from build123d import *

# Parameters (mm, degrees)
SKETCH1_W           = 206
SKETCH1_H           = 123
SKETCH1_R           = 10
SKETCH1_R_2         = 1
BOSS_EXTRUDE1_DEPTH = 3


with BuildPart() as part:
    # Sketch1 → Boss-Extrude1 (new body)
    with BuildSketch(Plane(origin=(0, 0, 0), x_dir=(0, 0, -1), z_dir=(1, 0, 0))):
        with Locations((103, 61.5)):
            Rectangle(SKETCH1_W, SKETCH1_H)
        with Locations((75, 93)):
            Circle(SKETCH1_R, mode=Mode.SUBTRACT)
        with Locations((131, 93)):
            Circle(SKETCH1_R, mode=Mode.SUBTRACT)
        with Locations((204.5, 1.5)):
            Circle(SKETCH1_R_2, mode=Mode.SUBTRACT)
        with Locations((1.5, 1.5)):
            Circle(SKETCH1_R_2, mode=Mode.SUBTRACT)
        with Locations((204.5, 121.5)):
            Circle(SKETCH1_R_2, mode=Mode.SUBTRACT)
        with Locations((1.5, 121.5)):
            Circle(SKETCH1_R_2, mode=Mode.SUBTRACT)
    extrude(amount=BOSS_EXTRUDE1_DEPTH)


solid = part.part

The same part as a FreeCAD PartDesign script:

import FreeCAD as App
import Part
import Sketcher
from FreeCAD import Vector
Q = App.Units.Quantity

doc = App.newDocument("Part")
body = doc.addObject("PartDesign::Body", "Body")

sketch1 = body.newObject("Sketcher::SketchObject", "Sketch")
sketch1.AttachmentSupport = (doc.getObject("YZ_Plane"), [""])
sketch1.MapMode = "FlatFace"
sketch1.addGeometry(Part.LineSegment(Vector(123, 0, 0), Vector(0, 0, 0)), False)
sketch1.addGeometry(Part.LineSegment(Vector(0, 0, 0), Vector(0, -206, 0)), False)
sketch1.addGeometry(Part.LineSegment(Vector(0, -206, 0), Vector(123, -206, 0)), False)
sketch1.addGeometry(Part.LineSegment(Vector(123, -206, 0), Vector(123, 0, 0)), False)
sketch1.addGeometry(Part.Circle(Vector(1.5, -1.5, 0), Vector(0, 0, 1), 1), False)
sketch1.addGeometry(Part.Circle(Vector(1.5, -204.5, 0), Vector(0, 0, 1), 1), False)
sketch1.addGeometry(Part.Circle(Vector(121.5, -1.5, 0), Vector(0, 0, 1), 1), False)
sketch1.addGeometry(Part.Circle(Vector(93, -75, 0), Vector(0, 0, 1), 10), False)
sketch1.addGeometry(Part.Circle(Vector(93, -131, 0), Vector(0, 0, 1), 10), False)
sketch1.addGeometry(Part.Circle(Vector(121.5, -204.5, 0), Vector(0, 0, 1), 1), False)
sketch1.addConstraint(Sketcher.Constraint("Coincident", 0, 2, 1, 1))
sketch1.addConstraint(Sketcher.Constraint("Coincident", 1, 2, 2, 1))
sketch1.addConstraint(Sketcher.Constraint("Coincident", 2, 2, 3, 1))
sketch1.addConstraint(Sketcher.Constraint("Coincident", 3, 2, 0, 1))
sketch1.addConstraint(Sketcher.Constraint("Horizontal", 0))
sketch1.addConstraint(Sketcher.Constraint("Vertical", 1))
sketch1.addConstraint(Sketcher.Constraint("Horizontal", 2))
sketch1.addConstraint(Sketcher.Constraint("Vertical", 3))
sketch1.addConstraint(Sketcher.Constraint("Coincident", 0, 2, -1, 1))
sketch1.addConstraint(Sketcher.Constraint("Equal", 4, 5))
sketch1.addConstraint(Sketcher.Constraint("Equal", 5, 6))
sketch1.addConstraint(Sketcher.Constraint("Equal", 7, 8))
sketch1.addConstraint(Sketcher.Constraint("Equal", 6, 9))
sketch1.addConstraint(Sketcher.Constraint("Horizontal", 4, 3, 6, 3))
sketch1.addConstraint(Sketcher.Constraint("Horizontal", 5, 3, 9, 3))
sketch1.addConstraint(Sketcher.Constraint("Vertical", 4, 3, 5, 3))
sketch1.addConstraint(Sketcher.Constraint("Vertical", 7, 3, 8, 3))
sketch1.addConstraint(Sketcher.Constraint("Vertical", 6, 3, 9, 3))
sketch1.addConstraint(Sketcher.Constraint("Diameter", 4, Q("2 mm")))
sketch1.addConstraint(Sketcher.Constraint("Diameter", 7, Q("20 mm")))
sketch1.addConstraint(Sketcher.Constraint("DistanceX", 0, 2, 0, 1, Q("123 mm")))
sketch1.addConstraint(Sketcher.Constraint("DistanceY", 1, 2, 1, 1, Q("206 mm")))
sketch1.addConstraint(Sketcher.Constraint("DistanceX", -1, 1, 7, 3, Q("93 mm")))
sketch1.addConstraint(Sketcher.Constraint("DistanceY", 7, 3, -1, 1, Q("75 mm")))
sketch1.addConstraint(Sketcher.Constraint("DistanceY", 8, 3, -1, 1, Q("131 mm")))
sketch1.addConstraint(Sketcher.Constraint("DistanceY", 5, 3, 4, 3, Q("203 mm")))
sketch1.addConstraint(Sketcher.Constraint("DistanceX", 4, 3, 6, 3, Q("120 mm")))
sketch1.addConstraint(Sketcher.Constraint("DistanceX", -1, 1, 4, 3, Q("1.5 mm")))
sketch1.addConstraint(Sketcher.Constraint("DistanceY", 4, 3, -1, 1, Q("1.5 mm")))
pad1 = body.newObject("PartDesign::Pad", "Pad")
pad1.Profile = sketch1
pad1.Length = 3

doc.recompute()
